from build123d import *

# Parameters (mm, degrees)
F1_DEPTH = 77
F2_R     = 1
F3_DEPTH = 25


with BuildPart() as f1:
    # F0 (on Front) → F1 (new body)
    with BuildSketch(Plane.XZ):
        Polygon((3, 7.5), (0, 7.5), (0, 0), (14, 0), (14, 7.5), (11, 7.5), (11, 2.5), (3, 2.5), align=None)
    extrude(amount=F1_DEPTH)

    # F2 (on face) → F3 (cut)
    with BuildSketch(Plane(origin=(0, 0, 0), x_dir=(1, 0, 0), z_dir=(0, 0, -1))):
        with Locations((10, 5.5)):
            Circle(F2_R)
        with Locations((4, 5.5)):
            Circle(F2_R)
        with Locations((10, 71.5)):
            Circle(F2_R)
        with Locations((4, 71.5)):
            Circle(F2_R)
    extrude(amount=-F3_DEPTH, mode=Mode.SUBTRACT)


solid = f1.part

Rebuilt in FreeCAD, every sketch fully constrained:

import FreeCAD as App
import Part
import Sketcher
Q = App.Units.Quantity

doc = App.newDocument("Part")
params = doc.addObject("Spreadsheet::Sheet", "Params")
for row, (alias, value) in enumerate([
    ("sketch1_width", "3 mm"),
    ("sketch1_width2", "14 mm"),
    ("sketch1_height", "5 mm"),
    ("sketch1_height2", "7.5 mm"),
    ("pad1_length", "77 mm"),
    ("sketch2_diameter", "2 mm"),
    ("pocket1_length", "25 mm"),
], start=1):
    params.set(f"A{row}", alias)
    params.set(f"B{row}", "=" + value)
    params.setAlias(f"B{row}", alias)

body = doc.addObject("PartDesign::Body", "Body")

sketch1 = body.newObject("Sketcher::SketchObject", "Sketch")
sketch1.AttachmentSupport = (doc.getObject("XZ_Plane"), [""])
sketch1.MapMode = "FlatFace"
sketch1.addGeometry(Part.LineSegment(App.Vector(3, 7.5, 0), App.Vector(0, 7.5, 0)), False)
sketch1.addGeometry(Part.LineSegment(App.Vector(0, 7.5, 0), App.Vector(0, 0, 0)), False)
sketch1.addGeometry(Part.LineSegment(App.Vector(0, 0, 0), App.Vector(14, 0, 0)), False)
sketch1.addGeometry(Part.LineSegment(App.Vector(14, 0, 0), App.Vector(14, 7.5, 0)), False)
sketch1.addGeometry(Part.LineSegment(App.Vector(14, 7.5, 0), App.Vector(11, 7.5, 0)), False)
sketch1.addGeometry(Part.LineSegment(App.Vector(11, 7.5, 0), App.Vector(11, 2.5, 0)), False)
sketch1.addGeometry(Part.LineSegment(App.Vector(11, 2.5, 0), App.Vector(3, 2.5, 0)), False)
sketch1.addGeometry(Part.LineSegment(App.Vector(3, 2.5, 0), App.Vector(3, 7.5, 0)), False)
sketch1.addConstraint(Sketcher.Constraint("Coincident", 0, 2, 1, 1))
sketch1.addConstraint(Sketcher.Constraint("Coincident", 1, 2, 2, 1))
sketch1.addConstraint(Sketcher.Constraint("Coincident", 2, 2, 3, 1))
sketch1.addConstraint(Sketcher.Constraint("Coincident", 3, 2, 4, 1))
sketch1.addConstraint(Sketcher.Constraint("Coincident", 4, 2, 5, 1))
sketch1.addConstraint(Sketcher.Constraint("Coincident", 5, 2, 6, 1))
sketch1.addConstraint(Sketcher.Constraint("Coincident", 6, 2, 7, 1))
sketch1.addConstraint(Sketcher.Constraint("Coincident", 7, 2, 0, 1))
sketch1.addConstraint(Sketcher.Constraint("Horizontal", 0))
sketch1.addConstraint(Sketcher.Constraint("Vertical", 1))
sketch1.addConstraint(Sketcher.Constraint("Horizontal", 2))
sketch1.addConstraint(Sketcher.Constraint("Vertical", 3))
sketch1.addConstraint(Sketcher.Constraint("Horizontal", 4))
sketch1.addConstraint(Sketcher.Constraint("Vertical", 5))
sketch1.addConstraint(Sketcher.Constraint("Horizontal", 6))
sketch1.addConstraint(Sketcher.Constraint("Vertical", 7))
sketch1.addConstraint(Sketcher.Constraint("Coincident", 1, 2, -1, 1))
sketch1.addConstraint(Sketcher.Constraint("Horizontal", 0, 2, 3, 2))
sketch1.addConstraint(Sketcher.Constraint("Equal", 0, 4))
sketch1.addConstraint(Sketcher.Constraint("DistanceX", 0, 2, 0, 1, Q("3 mm")))
sketch1.addConstraint(Sketcher.Constraint("DistanceX", 2, 1, 2, 2, Q("14 mm")))
sketch1.addConstraint(Sketcher.Constraint("DistanceY", 5, 2, 5, 1, Q("5 mm")))
sketch1.addConstraint(Sketcher.Constraint("DistanceY", 1, 2, 1, 1, Q("7.5 mm")))
sketch1.setExpression("Constraints[19]", "Params.sketch1_width")
sketch1.setExpression("Constraints[20]", "Params.sketch1_width2")
sketch1.setExpression("Constraints[21]", "Params.sketch1_height")
sketch1.setExpression("Constraints[22]", "Params.sketch1_height2")
pad1 = body.newObject("PartDesign::Pad", "Pad")
pad1.Profile = sketch1
pad1.setExpression("Length", "Params.pad1_length")

sketch2 = body.newObject("Sketcher::SketchObject", "Sketch001")
sketch2.AttachmentSupport = (doc.getObject("XY_Plane"), [""])
sketch2.MapMode = "FlatFace"
sketch2.addGeometry(Part.Circle(App.Vector(10, -5.5, 0), App.Vector(0, 0, 1), 1), False)
sketch2.addGeometry(Part.Circle(App.Vector(4, -5.5, 0), App.Vector(0, 0, 1), 1), False)
sketch2.addGeometry(Part.Circle(App.Vector(10, -71.5, 0), App.Vector(0, 0, 1), 1), False)
sketch2.addGeometry(Part.Circle(App.Vector(4, -71.5, 0), App.Vector(0, 0, 1), 1), False)
sketch2.addConstraint(Sketcher.Constraint("Equal", 0, 1))
sketch2.addConstraint(Sketcher.Constraint("Equal", 1, 2))
sketch2.addConstraint(Sketcher.Constraint("Equal", 2, 3))
sketch2.addConstraint(Sketcher.Constraint("Horizontal", 0, 3, 1, 3))
sketch2.addConstraint(Sketcher.Constraint("Horizontal", 2, 3, 3, 3))
sketch2.addConstraint(Sketcher.Constraint("Vertical", 0, 3, 2, 3))
sketch2.addConstraint(Sketcher.Constraint("Vertical", 1, 3, 3, 3))
sketch2.addConstraint(Sketcher.Constraint("Diameter", 0, Q("2 mm")))
sketch2.addConstraint(Sketcher.Constraint("DistanceX", -1, 1, 0, 3, Q("10 mm")))
sketch2.addConstraint(Sketcher.Constraint("DistanceX", -1, 1, 1, 3, Q("4 mm")))
sketch2.addConstraint(Sketcher.Constraint("DistanceY", 2, 3, 0, 3, Q("66 mm")))
sketch2.addConstraint(Sketcher.Constraint("DistanceY", 0, 3, -1, 1, Q("5.5 mm")))
sketch2.setExpression("Constraints[7]", "Params.sketch2_diameter")
pocket1 = body.newObject("PartDesign::Pocket", "Pocket")
pocket1.Profile = sketch2
pocket1.setExpression("Length", "Params.pocket1_length")
pocket1.Reversed = True

doc.recompute()
